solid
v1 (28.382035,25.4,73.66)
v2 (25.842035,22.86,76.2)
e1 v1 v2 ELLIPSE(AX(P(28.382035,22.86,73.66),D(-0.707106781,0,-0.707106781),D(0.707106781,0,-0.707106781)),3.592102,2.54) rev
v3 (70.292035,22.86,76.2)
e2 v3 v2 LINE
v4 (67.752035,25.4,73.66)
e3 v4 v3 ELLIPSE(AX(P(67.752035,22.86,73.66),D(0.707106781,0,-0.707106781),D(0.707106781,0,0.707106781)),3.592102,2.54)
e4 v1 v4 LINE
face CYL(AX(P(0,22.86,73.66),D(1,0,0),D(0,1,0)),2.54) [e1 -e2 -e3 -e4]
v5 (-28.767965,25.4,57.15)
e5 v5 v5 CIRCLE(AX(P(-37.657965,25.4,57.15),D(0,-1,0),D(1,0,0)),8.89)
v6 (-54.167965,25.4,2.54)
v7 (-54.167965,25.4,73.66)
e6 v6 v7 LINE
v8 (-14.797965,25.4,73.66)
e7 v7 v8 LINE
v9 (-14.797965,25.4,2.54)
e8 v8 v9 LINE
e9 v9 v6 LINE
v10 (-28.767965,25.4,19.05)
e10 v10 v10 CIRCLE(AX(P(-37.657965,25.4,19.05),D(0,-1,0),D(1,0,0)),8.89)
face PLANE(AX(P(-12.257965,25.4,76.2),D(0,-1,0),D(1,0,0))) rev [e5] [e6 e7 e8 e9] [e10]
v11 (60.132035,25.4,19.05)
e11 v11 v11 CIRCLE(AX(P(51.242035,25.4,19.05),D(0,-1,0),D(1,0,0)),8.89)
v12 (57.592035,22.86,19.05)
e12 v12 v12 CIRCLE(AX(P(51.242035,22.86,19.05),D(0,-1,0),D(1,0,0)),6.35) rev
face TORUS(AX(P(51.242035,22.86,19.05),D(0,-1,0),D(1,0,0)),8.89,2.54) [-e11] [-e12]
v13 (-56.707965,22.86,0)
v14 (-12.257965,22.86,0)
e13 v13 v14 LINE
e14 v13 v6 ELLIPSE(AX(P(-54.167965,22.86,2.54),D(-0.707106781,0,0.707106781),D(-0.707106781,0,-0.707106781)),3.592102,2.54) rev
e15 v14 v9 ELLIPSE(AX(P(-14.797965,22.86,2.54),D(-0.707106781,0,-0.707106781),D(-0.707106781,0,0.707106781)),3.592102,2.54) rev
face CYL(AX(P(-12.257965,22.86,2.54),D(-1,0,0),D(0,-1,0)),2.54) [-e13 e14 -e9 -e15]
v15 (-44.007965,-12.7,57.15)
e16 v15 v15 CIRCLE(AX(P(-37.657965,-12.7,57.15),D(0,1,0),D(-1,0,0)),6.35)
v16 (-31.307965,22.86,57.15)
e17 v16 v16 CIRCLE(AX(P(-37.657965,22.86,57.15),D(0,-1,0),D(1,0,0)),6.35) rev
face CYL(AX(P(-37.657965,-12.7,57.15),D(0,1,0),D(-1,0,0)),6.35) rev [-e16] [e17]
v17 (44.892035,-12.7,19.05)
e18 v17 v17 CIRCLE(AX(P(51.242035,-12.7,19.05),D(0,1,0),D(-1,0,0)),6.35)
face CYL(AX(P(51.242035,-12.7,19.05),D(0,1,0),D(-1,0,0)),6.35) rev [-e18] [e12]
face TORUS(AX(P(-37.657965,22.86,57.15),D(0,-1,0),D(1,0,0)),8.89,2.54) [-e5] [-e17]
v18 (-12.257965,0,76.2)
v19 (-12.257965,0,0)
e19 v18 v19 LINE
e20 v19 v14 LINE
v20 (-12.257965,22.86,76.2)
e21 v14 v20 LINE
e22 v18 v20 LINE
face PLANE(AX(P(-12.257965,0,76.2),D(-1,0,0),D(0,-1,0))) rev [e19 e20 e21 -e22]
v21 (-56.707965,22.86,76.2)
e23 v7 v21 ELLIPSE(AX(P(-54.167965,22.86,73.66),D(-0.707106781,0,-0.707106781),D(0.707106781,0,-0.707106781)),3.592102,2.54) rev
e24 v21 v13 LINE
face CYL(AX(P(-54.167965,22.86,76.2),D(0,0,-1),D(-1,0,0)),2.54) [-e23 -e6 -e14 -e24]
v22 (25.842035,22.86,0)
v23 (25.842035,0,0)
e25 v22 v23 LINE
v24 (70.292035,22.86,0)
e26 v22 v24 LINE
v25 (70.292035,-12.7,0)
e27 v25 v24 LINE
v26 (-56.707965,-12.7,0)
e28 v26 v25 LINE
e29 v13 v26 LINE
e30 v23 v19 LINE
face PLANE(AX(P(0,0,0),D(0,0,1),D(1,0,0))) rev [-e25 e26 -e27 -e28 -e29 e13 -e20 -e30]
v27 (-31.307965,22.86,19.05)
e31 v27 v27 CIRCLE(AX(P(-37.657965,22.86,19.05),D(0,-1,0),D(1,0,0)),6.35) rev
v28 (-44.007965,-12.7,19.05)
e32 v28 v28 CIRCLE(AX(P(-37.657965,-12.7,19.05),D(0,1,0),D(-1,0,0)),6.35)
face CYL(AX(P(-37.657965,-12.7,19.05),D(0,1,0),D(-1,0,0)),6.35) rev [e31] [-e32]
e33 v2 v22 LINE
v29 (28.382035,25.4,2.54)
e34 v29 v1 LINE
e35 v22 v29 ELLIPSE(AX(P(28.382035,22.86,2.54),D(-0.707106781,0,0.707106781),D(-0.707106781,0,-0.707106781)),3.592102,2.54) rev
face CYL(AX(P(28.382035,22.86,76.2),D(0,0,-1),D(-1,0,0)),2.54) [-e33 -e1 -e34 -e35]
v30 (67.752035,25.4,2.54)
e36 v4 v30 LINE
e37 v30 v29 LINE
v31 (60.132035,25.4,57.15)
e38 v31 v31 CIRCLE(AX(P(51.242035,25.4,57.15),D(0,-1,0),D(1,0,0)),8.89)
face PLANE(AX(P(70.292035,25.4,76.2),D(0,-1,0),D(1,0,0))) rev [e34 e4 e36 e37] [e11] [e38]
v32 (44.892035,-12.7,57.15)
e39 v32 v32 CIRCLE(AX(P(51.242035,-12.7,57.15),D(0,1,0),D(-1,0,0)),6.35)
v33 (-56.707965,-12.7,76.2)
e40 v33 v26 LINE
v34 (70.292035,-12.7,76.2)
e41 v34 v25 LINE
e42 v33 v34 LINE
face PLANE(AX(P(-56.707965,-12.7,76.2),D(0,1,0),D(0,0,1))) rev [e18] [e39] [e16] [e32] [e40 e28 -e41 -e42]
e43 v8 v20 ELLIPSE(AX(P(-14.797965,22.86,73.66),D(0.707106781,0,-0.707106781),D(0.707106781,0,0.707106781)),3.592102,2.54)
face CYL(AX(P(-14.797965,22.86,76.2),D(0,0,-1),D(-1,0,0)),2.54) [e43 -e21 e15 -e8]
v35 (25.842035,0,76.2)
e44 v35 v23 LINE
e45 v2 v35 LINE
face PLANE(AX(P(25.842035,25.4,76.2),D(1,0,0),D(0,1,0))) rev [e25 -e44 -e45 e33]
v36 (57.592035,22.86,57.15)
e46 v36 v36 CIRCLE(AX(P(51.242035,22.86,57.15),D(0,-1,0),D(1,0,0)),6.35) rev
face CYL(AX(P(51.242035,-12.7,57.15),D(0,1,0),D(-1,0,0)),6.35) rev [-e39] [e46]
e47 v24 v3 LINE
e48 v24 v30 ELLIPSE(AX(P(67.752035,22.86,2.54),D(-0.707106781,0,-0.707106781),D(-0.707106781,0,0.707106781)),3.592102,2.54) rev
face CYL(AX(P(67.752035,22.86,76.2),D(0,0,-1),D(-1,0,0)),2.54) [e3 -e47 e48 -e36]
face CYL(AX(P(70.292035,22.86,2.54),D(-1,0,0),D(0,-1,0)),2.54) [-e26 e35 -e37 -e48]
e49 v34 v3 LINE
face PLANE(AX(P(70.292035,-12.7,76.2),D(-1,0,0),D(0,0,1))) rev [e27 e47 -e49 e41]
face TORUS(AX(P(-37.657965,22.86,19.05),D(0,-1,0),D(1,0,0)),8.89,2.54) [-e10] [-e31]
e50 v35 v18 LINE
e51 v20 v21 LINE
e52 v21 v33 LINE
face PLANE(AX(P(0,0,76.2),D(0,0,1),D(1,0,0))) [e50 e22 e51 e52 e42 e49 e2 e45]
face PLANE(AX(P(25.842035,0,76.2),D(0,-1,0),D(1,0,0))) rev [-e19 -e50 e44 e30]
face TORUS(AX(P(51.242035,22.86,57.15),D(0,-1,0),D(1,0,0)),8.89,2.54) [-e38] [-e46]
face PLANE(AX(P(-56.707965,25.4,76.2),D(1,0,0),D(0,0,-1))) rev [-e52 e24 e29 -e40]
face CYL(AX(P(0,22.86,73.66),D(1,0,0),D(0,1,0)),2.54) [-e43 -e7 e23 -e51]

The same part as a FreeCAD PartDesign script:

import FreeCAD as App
import Part
import Sketcher

V = App.Vector
Q = App.Units.Quantity


def edges_at(feature, points):
    """Names of the edges that pass closest to the given points."""
    edges = feature.Shape.Edges
    near = lambda p: min(range(len(edges)), key=lambda i: edges[i].distToShape(Part.Vertex(*p))[0])
    return sorted({f"Edge{near(p) + 1}" for p in points})


def add_polygon(sketch, points):
    """Adds a closed chain of lines whose ends are joined by coincident constraints."""
    first, n = sketch.GeometryCount, len(points)
    for a, b in zip(points, points[1:] + points[:1]):
        sketch.addGeometry(Part.LineSegment(App.Vector(*a, 0), App.Vector(*b, 0)), False)
    for i in range(n):
        sketch.addConstraint(Sketcher.Constraint("Coincident", first + i, 2, first + (i + 1) % n, 1))

doc = App.newDocument("Part")
params = doc.addObject("Spreadsheet::Sheet", "Params")
for row, (alias, value) in enumerate([
    ("sketch1_width", "5 in"),
    ("sketch1_height", "1 in"),
    ("sketch1_width2", "1.5 in"),
    ("pad1_length", "3 in"),
    ("sketch2_diameter", "0.5 in"),
    ("fillet_radius", "0.1 in"),
], start=1):
    params.set(f"A{row}", alias)
    params.set(f"B{row}", "=" + value)
    params.setAlias(f"B{row}", alias)

body = doc.addObject("PartDesign::Body", "Body")

sketch1 = body.newObject("Sketcher::SketchObject", "Sketch")
sketch1.AttachmentSupport = (doc.getObject("XY_Plane"), [""])
sketch1.MapMode = "FlatFace"
add_polygon(sketch1, [(-57, -13), (70, -13), (70, 25), (26, 25), (26, 0), (-12, 0), (-12, 25), (-57, 25)])
sketch1.addConstraint([
    Sketcher.Constraint("Horizontal", 0),
    Sketcher.Constraint("Vertical", 1),
    Sketcher.Constraint("Horizontal", 2),
    Sketcher.Constraint("Vertical", 3),
    Sketcher.Constraint("Horizontal", 4),
    Sketcher.Constraint("Vertical", 5),
    Sketcher.Constraint("Horizontal", 6),
    Sketcher.Constraint("Vertical", 7),
    Sketcher.Constraint("PointOnObject", 3, 2, -1),
    Sketcher.Constraint("Horizontal", 2, 2, 5, 2),
    Sketcher.Constraint("Equal", 2, 6),
    Sketcher.Constraint("Equal", 4, 1),
    Sketcher.Constraint("DistanceX", 0, 1, 0, 2, Q("5 in")),
    Sketcher.Constraint("DistanceY", 3, 2, 3, 1, Q("1 in")),
    Sketcher.Constraint("DistanceX", 4, 2, 4, 1, Q("1.5 in")),
    Sketcher.Constraint("DistanceX", -1, 1, 0, 2, 70.292035),
])
sketch1.setExpression("Constraints[20]", "Params.sketch1_width")
sketch1.setExpression("Constraints[21]", "Params.sketch1_height")
sketch1.setExpression("Constraints[22]", "Params.sketch1_width2")
pad1 = body.newObject("PartDesign::Pad", "Pad")
pad1.Profile = sketch1
pad1.setExpression("Length", "Params.pad1_length")

sketch2 = body.newObject("Sketcher::SketchObject", "Sketch001")
sketch2.AttachmentSupport = (doc.getObject("XZ_Plane"), [""])
sketch2.MapMode = "FlatFace"
sketch2.AttachmentOffset = App.Placement(V(0, 0, -1 * 25.4), App.Rotation())
sketch2.addGeometry([
    Part.Circle(V(-38, 19, 0), V(0, 0, 1), 6),
    Part.Circle(V(-38, 57, 0), V(0, 0, 1), 6),
    Part.Circle(V(51, 19, 0), V(0, 0, 1), 6),
    Part.Circle(V(51, 57, 0), V(0, 0, 1), 6),
], False)
sketch2.addConstraint([
    Sketcher.Constraint("Equal", 0, 1),
    Sketcher.Constraint("Equal", 1, 2),
    Sketcher.Constraint("Equal", 2, 3),
    Sketcher.Constraint("Horizontal", 0, 3, 2, 3),
    Sketcher.Constraint("Horizontal", 1, 3, 3, 3),
    Sketcher.Constraint("Vertical", 0, 3, 1, 3),
    Sketcher.Constraint("Vertical", 2, 3, 3, 3),
    Sketcher.Constraint("Diameter", 0, Q("0.5 in")),
    Sketcher.Constraint("DistanceY", 0, 3, 1, 3, Q("1.5 in")),
    Sketcher.Constraint("DistanceX", 0, 3, 2, 3, Q("3.5 in")),
    Sketcher.Constraint("DistanceY", -1, 1, 0, 3, Q("0.75 in")),
    Sketcher.Constraint("DistanceX", 0, 3, -1, 1, 37.657965),
])
sketch2.setExpression("Constraints[7]", "Params.sketch2_diameter")
pocket1 = body.newObject("PartDesign::Pocket", "Pocket")
pocket1.Profile = sketch2
pocket1.Type = "ThroughAll"
pocket1.Reversed = True
doc.recompute()

fillet = body.newObject("PartDesign::Fillet", "Fillet")
fillet.Base = (pocket1, edges_at(pocket1, [
    (-34.483, 25.4, 0),
    (-12.258, 25.4, 38.1),
    (25.842, 25.4, 38.1),
    (70.292, 25.4, 38.1),
    (-56.708, 25.4, 38.1),
    (48.067, 25.4, 76.2),
    (-31.308, 25.4, 57.15),
    (57.592, 25.4, 19.05),
    (57.592, 25.4, 57.15),
    (-31.308, 25.4, 19.05),
    (-34.483, 25.4, 76.2),
    (48.067, 25.4, 0),
]))
fillet.setExpression("Radius", "Params.fillet_radius")

doc.recompute()
